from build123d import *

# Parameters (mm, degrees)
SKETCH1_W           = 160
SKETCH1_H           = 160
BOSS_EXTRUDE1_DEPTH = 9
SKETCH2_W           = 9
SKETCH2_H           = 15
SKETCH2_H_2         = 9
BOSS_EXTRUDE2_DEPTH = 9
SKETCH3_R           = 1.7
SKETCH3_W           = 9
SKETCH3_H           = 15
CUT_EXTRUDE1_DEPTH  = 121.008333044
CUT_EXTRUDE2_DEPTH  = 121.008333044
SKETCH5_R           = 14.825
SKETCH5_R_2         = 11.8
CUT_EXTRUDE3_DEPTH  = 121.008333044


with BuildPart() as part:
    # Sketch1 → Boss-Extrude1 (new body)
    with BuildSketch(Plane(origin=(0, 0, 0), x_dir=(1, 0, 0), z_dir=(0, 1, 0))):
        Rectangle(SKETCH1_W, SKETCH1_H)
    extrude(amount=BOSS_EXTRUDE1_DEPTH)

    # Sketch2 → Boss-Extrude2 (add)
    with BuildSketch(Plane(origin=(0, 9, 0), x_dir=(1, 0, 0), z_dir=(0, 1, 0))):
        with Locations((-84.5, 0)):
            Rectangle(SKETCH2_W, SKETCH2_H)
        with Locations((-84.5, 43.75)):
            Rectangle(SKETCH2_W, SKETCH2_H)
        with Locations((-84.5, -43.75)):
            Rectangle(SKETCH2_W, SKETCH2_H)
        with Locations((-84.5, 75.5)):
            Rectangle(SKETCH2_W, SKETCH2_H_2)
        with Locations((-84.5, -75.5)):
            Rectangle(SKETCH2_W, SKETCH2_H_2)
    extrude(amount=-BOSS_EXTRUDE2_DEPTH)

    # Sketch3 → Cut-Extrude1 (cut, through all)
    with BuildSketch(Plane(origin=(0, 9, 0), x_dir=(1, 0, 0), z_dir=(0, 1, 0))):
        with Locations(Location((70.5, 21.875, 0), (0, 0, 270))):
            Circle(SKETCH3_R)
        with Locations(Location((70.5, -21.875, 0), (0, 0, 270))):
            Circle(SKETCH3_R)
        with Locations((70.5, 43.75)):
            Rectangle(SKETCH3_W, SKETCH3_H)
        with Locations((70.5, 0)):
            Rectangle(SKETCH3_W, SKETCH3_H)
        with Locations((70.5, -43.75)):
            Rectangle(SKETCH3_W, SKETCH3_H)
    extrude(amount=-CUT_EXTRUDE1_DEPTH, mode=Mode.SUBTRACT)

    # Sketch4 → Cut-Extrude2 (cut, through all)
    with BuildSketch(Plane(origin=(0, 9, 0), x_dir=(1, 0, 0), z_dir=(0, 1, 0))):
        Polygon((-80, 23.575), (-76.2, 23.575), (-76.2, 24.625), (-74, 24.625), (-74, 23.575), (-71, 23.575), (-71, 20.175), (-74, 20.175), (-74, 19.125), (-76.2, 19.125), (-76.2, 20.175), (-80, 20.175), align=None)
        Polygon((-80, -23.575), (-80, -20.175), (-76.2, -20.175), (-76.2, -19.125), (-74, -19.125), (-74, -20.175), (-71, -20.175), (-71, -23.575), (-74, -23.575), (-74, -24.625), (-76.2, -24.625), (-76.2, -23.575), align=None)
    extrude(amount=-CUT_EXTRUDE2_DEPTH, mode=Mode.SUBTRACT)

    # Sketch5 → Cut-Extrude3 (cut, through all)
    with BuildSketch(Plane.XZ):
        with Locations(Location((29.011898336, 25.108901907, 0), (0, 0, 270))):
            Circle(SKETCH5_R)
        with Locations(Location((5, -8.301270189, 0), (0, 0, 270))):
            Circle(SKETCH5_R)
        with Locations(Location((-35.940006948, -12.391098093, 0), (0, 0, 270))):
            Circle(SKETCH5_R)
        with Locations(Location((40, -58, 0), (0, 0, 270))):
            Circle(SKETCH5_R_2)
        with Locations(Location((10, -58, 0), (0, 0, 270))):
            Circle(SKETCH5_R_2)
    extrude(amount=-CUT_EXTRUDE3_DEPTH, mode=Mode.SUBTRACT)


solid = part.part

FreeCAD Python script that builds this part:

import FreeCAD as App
import Part
import Sketcher

doc = App.newDocument("Part")
body = doc.addObject("PartDesign::Body", "Body")

sketch1 = body.newObject("Sketcher::SketchObject", "Sketch")
sketch1.AttachmentSupport = (doc.getObject("XZ_Plane"), [""])
sketch1.MapMode = "FlatFace"
sketch1.addGeometry([
    Part.LineSegment(App.Vector(-80, -80, 0), App.Vector(-80, 80, 0)),
    Part.LineSegment(App.Vector(-80, 80, 0), App.Vector(80, 80, 0)),
    Part.LineSegment(App.Vector(80, 80, 0), App.Vector(80, -80, 0)),
    Part.LineSegment(App.Vector(80, -80, 0), App.Vector(-80, -80, 0)),
], False)
sketch1.addConstraint([
    Sketcher.Constraint("Coincident", 0, 2, 1, 1),
    Sketcher.Constraint("Coincident", 1, 2, 2, 1),
    Sketcher.Constraint("Coincident", 2, 2, 3, 1),
    Sketcher.Constraint("Coincident", 3, 2, 0, 1),
    Sketcher.Constraint("Vertical", 0),
    Sketcher.Constraint("Horizontal", 1),
    Sketcher.Constraint("Vertical", 2),
    Sketcher.Constraint("Horizontal", 3),
    Sketcher.Constraint("Symmetric", 0, 2, 2, 2, -1, 1),
    Sketcher.Constraint("Equal", 3, 0),
    Sketcher.Constraint("DistanceX", 1, 1, 1, 2, 160.0),
])
pad1 = body.newObject("PartDesign::Pad", "Pad")
pad1.Profile = sketch1
pad1.Length = 9
pad1.Reversed = True

sketch2 = body.newObject("Sketcher::SketchObject", "Sketch001")
sketch2.AttachmentSupport = (doc.getObject("XZ_Plane"), [""])
sketch2.MapMode = "FlatFace"
sketch2.AttachmentOffset = App.Placement(App.Vector(0, 0, -9), App.Rotation())
sketch2.addGeometry([
    Part.LineSegment(App.Vector(-89, -8, 0), App.Vector(-89, 8, 0)),
    Part.LineSegment(App.Vector(-89, 8, 0), App.Vector(-80, 8, 0)),
    Part.LineSegment(App.Vector(-80, 8, 0), App.Vector(-80, -8, 0)),
    Part.LineSegment(App.Vector(-80, -8, 0), App.Vector(-89, -8, 0)),
    Part.LineSegment(App.Vector(-89, -51, 0), App.Vector(-89, -36, 0)),
    Part.LineSegment(App.Vector(-89, -36, 0), App.Vector(-80, -36, 0)),
    Part.LineSegment(App.Vector(-80, -36, 0), App.Vector(-80, -51, 0)),
    Part.LineSegment(App.Vector(-80, -51, 0), App.Vector(-89, -51, 0)),
    Part.LineSegment(App.Vector(-89, 36, 0), App.Vector(-89, 51, 0)),
    Part.LineSegment(App.Vector(-89, 51, 0), App.Vector(-80, 51, 0)),
    Part.LineSegment(App.Vector(-80, 51, 0), App.Vector(-80, 36, 0)),
    Part.LineSegment(App.Vector(-80, 36, 0), App.Vector(-89, 36, 0)),
    Part.LineSegment(App.Vector(-89, -80, 0), App.Vector(-89, -71, 0)),
    Part.LineSegment(App.Vector(-89, -71, 0), App.Vector(-80, -71, 0)),
    Part.LineSegment(App.Vector(-80, -71, 0), App.Vector(-80, -80, 0)),
    Part.LineSegment(App.Vector(-80, -80, 0), App.Vector(-89, -80, 0)),
    Part.LineSegment(App.Vector(-89, 71, 0), App.Vector(-89, 80, 0)),
    Part.LineSegment(App.Vector(-89, 80, 0), App.Vector(-80, 80, 0)),
    Part.LineSegment(App.Vector(-80, 80, 0), App.Vector(-80, 71, 0)),
    Part.LineSegment(App.Vector(-80, 71, 0), App.Vector(-89, 71, 0)),
], False)
sketch2.addConstraint([
    Sketcher.Constraint("Coincident", 0, 2, 1, 1),
    Sketcher.Constraint("Coincident", 1, 2, 2, 1),
    Sketcher.Constraint("Coincident", 2, 2, 3, 1),
    Sketcher.Constraint("Coincident", 3, 2, 0, 1),
    Sketcher.Constraint("Coincident", 4, 2, 5, 1),
    Sketcher.Constraint("Coincident", 5, 2, 6, 1),
    Sketcher.Constraint("Coincident", 6, 2, 7, 1),
    Sketcher.Constraint("Coincident", 7, 2, 4, 1),
    Sketcher.Constraint("Coincident", 8, 2, 9, 1),
    Sketcher.Constraint("Coincident", 9, 2, 10, 1),
    Sketcher.Constraint("Coincident", 10, 2, 11, 1),
    Sketcher.Constraint("Coincident", 11, 2, 8, 1),
    Sketcher.Constraint("Coincident", 12, 2, 13, 1),
    Sketcher.Constraint("Coincident", 13, 2, 14, 1),
    Sketcher.Constraint("Coincident", 14, 2, 15, 1),
    Sketcher.Constraint("Coincident", 15, 2, 12, 1),
    Sketcher.Constraint("Coincident", 16, 2, 17, 1),
    Sketcher.Constraint("Coincident", 17, 2, 18, 1),
    Sketcher.Constraint("Coincident", 18, 2, 19, 1),
    Sketcher.Constraint("Coincident", 19, 2, 16, 1),
    Sketcher.Constraint("Vertical", 0),
    Sketcher.Constraint("Horizontal", 1),
    Sketcher.Constraint("Vertical", 2),
    Sketcher.Constraint("Horizontal", 3),
    Sketcher.Constraint("Vertical", 4),
    Sketcher.Constraint("Horizontal", 5),
    Sketcher.Constraint("Vertical", 6),
    Sketcher.Constraint("Horizontal", 7),
    Sketcher.Constraint("Vertical", 8),
    Sketcher.Constraint("Horizontal", 9),
    Sketcher.Constraint("Vertical", 10),
    Sketcher.Constraint("Horizontal", 11),
    Sketcher.Constraint("Vertical", 12),
    Sketcher.Constraint("Horizontal", 13),
    Sketcher.Constraint("Vertical", 14),
    Sketcher.Constraint("Horizontal", 15),
    Sketcher.Constraint("Vertical", 16),
    Sketcher.Constraint("Horizontal", 17),
    Sketcher.Constraint("Vertical", 18),
    Sketcher.Constraint("Horizontal", 19),
    Sketcher.Constraint("Symmetric", 7, 2, 8, 2, -1),
    Sketcher.Constraint("Symmetric", 5, 2, 10, 2, -1),
    Sketcher.Constraint("Symmetric", 15, 2, 16, 2, -1),
    Sketcher.Constraint("Symmetric", 13, 2, 18, 2, -1),
    Sketcher.Constraint("Vertical", 3, 2, 4, 2),
    Sketcher.Constraint("Vertical", 2, 2, 5, 2),
    Sketcher.Constraint("Vertical", 11, 2, 12, 2),
    Sketcher.Constraint("Vertical", 10, 2, 13, 2),
    Sketcher.Constraint("Equal", 2, 4),
    Sketcher.Constraint("Equal", 19, 12),
    Sketcher.Constraint("DistanceX", 1, 1, 1, 2, 9.0),
    Sketcher.Constraint("DistanceY", 0, 1, 0, 2, 15.0),
    Sketcher.Constraint("DistanceX", 0, 2, -1, 1, 89.0),
    Sketcher.Constraint("DistanceY", 12, 2, -1, 1, 71.0),
    Sketcher.Constraint("DistanceY", -1, 1, 0, 2, 7.5),
    Sketcher.Constraint("DistanceY", 4, 2, 8, 2, 87.5),
])
pad2 = body.newObject("PartDesign::Pad", "Pad001")
pad2.Profile = sketch2
pad2.Length = 9

sketch3 = body.newObject("Sketcher::SketchObject", "Sketch002")
sketch3.AttachmentSupport = (doc.getObject("XZ_Plane"), [""])
sketch3.MapMode = "FlatFace"
sketch3.AttachmentOffset = App.Placement(App.Vector(0, 0, -9), App.Rotation())
sketch3.addGeometry([
    Part.Circle(App.Vector(70.5, -21.9, 0), App.Vector(0, 0, 1), 1.7),
    Part.Circle(App.Vector(70.5, 21.9, 0), App.Vector(0, 0, 1), 1.7),
    Part.LineSegment(App.Vector(66, -51.2, 0), App.Vector(66, -36.2, 0)),
    Part.LineSegment(App.Vector(66, -36.2, 0), App.Vector(75, -36.2, 0)),
    Part.LineSegment(App.Vector(75, -36.2, 0), App.Vector(75, -51.2, 0)),
    Part.LineSegment(App.Vector(75, -51.2, 0), App.Vector(66, -51.2, 0)),
    Part.LineSegment(App.Vector(66, -7.5, 0), App.Vector(66, 7.5, 0)),
    Part.LineSegment(App.Vector(66, 7.5, 0), App.Vector(75, 7.5, 0)),
    Part.LineSegment(App.Vector(75, 7.5, 0), App.Vector(75, -7.5, 0)),
    Part.LineSegment(App.Vector(75, -7.5, 0), App.Vector(66, -7.5, 0)),
    Part.LineSegment(App.Vector(66, 36.2, 0), App.Vector(66, 51.2, 0)),
    Part.LineSegment(App.Vector(66, 51.2, 0), App.Vector(75, 51.2, 0)),
    Part.LineSegment(App.Vector(75, 51.2, 0), App.Vector(75, 36.2, 0)),
    Part.LineSegment(App.Vector(75, 36.2, 0), App.Vector(66, 36.2, 0)),
], False)
sketch3.addConstraint([
    Sketcher.Constraint("Coincident", 2, 2, 3, 1),
    Sketcher.Constraint("Coincident", 3, 2, 4, 1),
    Sketcher.Constraint("Coincident", 4, 2, 5, 1),
    Sketcher.Constraint("Coincident", 5, 2, 2, 1),
    Sketcher.Constraint("Coincident", 6, 2, 7, 1),
    Sketcher.Constraint("Coincident", 7, 2, 8, 1),
    Sketcher.Constraint("Coincident", 8, 2, 9, 1),
    Sketcher.Constraint("Coincident", 9, 2, 6, 1),
    Sketcher.Constraint("Coincident", 10, 2, 11, 1),
    Sketcher.Constraint("Coincident", 11, 2, 12, 1),
    Sketcher.Constraint("Coincident", 12, 2, 13, 1),
    Sketcher.Constraint("Coincident", 13, 2, 10, 1),
    Sketcher.Constraint("Vertical", 2),
    Sketcher.Constraint("Horizontal", 3),
    Sketcher.Constraint("Vertical", 4),
    Sketcher.Constraint("Horizontal", 5),
    Sketcher.Constraint("Vertical", 6),
    Sketcher.Constraint("Horizontal", 7),
    Sketcher.Constraint("Vertical", 8),
    Sketcher.Constraint("Horizontal", 9),
    Sketcher.Constraint("Vertical", 10),
    Sketcher.Constraint("Horizontal", 11),
    Sketcher.Constraint("Vertical", 12),
    Sketcher.Constraint("Horizontal", 13),
    Sketcher.Constraint("Equal", 0, 1),
    Sketcher.Constraint("Symmetric", 0, 3, 1, 3, -1),
    Sketcher.Constraint("Symmetric", 5, 2, 10, 2, -1),
    Sketcher.Constraint("Symmetric", 3, 2, 12, 2, -1),
    Sketcher.Constraint("Vertical", 5, 2, 6, 2),
    Sketcher.Constraint("Vertical", 4, 2, 7, 2),
    Sketcher.Constraint("Equal", 4, 6),
    Sketcher.Constraint("Diameter", 0, 3.4),
    Sketcher.Constraint("DistanceX", 3, 1, 3, 2, 9.0),
    Sketcher.Constraint("DistanceY", 2, 1, 2, 2, 15.0),
    Sketcher.Constraint("DistanceX", -1, 1, 2, 2, 66.0),
    Sketcher.Constraint("DistanceX", -1, 1, 0, 3, 70.5),
    Sketcher.Constraint("DistanceY", -1, 1, 6, 2, 7.5),
    Sketcher.Constraint("DistanceY", 2, 2, -1, 1, 36.25),
    Sketcher.Constraint("DistanceY", 0, 3, 1, 3, 43.75),
])
pocket1 = body.newObject("PartDesign::Pocket", "Pocket")
pocket1.Profile = sketch3
pocket1.Type = "ThroughAll"
pocket1.Reversed = True

sketch4 = body.newObject("Sketcher::SketchObject", "Sketch003")
sketch4.AttachmentSupport = (doc.getObject("XZ_Plane"), [""])
sketch4.MapMode = "FlatFace"
sketch4.AttachmentOffset = App.Placement(App.Vector(0, 0, -9), App.Rotation())
sketch4.addGeometry([
    Part.LineSegment(App.Vector(-76.2, -23.6, 0), App.Vector(-80, -23.6, 0)),
    Part.LineSegment(App.Vector(-80, -23.6, 0), App.Vector(-80, -20.2, 0)),
    Part.LineSegment(App.Vector(-80, -20.2, 0), App.Vector(-76.2, -20.2, 0)),
    Part.LineSegment(App.Vector(-76.2, -20.2, 0), App.Vector(-76.2, -19.1, 0)),
    Part.LineSegment(App.Vector(-76.2, -19.1, 0), App.Vector(-74, -19.1, 0)),
    Part.LineSegment(App.Vector(-74, -19.1, 0), App.Vector(-74, -20.2, 0)),
    Part.LineSegment(App.Vector(-74, -20.2, 0), App.Vector(-71, -20.2, 0)),
    Part.LineSegment(App.Vector(-71, -20.2, 0), App.Vector(-71, -23.6, 0)),
    Part.LineSegment(App.Vector(-71, -23.6, 0), App.Vector(-74, -23.6, 0)),
    Part.LineSegment(App.Vector(-74, -23.6, 0), App.Vector(-74, -24.6, 0)),
    Part.LineSegment(App.Vector(-74, -24.6, 0), App.Vector(-76.2, -24.6, 0)),
    Part.LineSegment(App.Vector(-76.2, -24.6, 0), App.Vector(-76.2, -23.6, 0)),
    Part.LineSegment(App.Vector(-80, 20.2, 0), App.Vector(-80, 23.6, 0)),
    Part.LineSegment(App.Vector(-80, 23.6, 0), App.Vector(-76.2, 23.6, 0)),
    Part.LineSegment(App.Vector(-76.2, 23.6, 0), App.Vector(-76.2, 24.6, 0)),
    Part.LineSegment(App.Vector(-76.2, 24.6, 0), App.Vector(-74, 24.6, 0)),
    Part.LineSegment(App.Vector(-74, 24.6, 0), App.Vector(-74, 23.6, 0)),
    Part.LineSegment(App.Vector(-74, 23.6, 0), App.Vector(-71, 23.6, 0)),
    Part.LineSegment(App.Vector(-71, 23.6, 0), App.Vector(-71, 20.2, 0)),
    Part.LineSegment(App.Vector(-71, 20.2, 0), App.Vector(-74, 20.2, 0)),
    Part.LineSegment(App.Vector(-74, 20.2, 0), App.Vector(-74, 19.1, 0)),
    Part.LineSegment(App.Vector(-74, 19.1, 0), App.Vector(-76.2, 19.1, 0)),
    Part.LineSegment(App.Vector(-76.2, 19.1, 0), App.Vector(-76.2, 20.2, 0)),
    Part.LineSegment(App.Vector(-76.2, 20.2, 0), App.Vector(-80, 20.2, 0)),
], False)
sketch4.addConstraint([
    Sketcher.Constraint("Coincident", 0, 2, 1, 1),
    Sketcher.Constraint("Coincident", 1, 2, 2, 1),
    Sketcher.Constraint("Coincident", 2, 2, 3, 1),
    Sketcher.Constraint("Coincident", 3, 2, 4, 1),
    Sketcher.Constraint("Coincident", 4, 2, 5, 1),
    Sketcher.Constraint("Coincident", 5, 2, 6, 1),
    Sketcher.Constraint("Coincident", 6, 2, 7, 1),
    Sketcher.Constraint("Coincident", 7, 2, 8, 1),
    Sketcher.Constraint("Coincident", 8, 2, 9, 1),
    Sketcher.Constraint("Coincident", 9, 2, 10, 1),
    Sketcher.Constraint("Coincident", 10, 2, 11, 1),
    Sketcher.Constraint("Coincident", 11, 2, 0, 1),
    Sketcher.Constraint("Coincident", 12, 2, 13, 1),
    Sketcher.Constraint("Coincident", 13, 2, 14, 1),
    Sketcher.Constraint("Coincident", 14, 2, 15, 1),
    Sketcher.Constraint("Coincident", 15, 2, 16, 1),
    Sketcher.Constraint("Coincident", 16, 2, 17, 1),
    Sketcher.Constraint("Coincident", 17, 2, 18, 1),
    Sketcher.Constraint("Coincident", 18, 2, 19, 1),
    Sketcher.Constraint("Coincident", 19, 2, 20, 1),
    Sketcher.Constraint("Coincident", 20, 2, 21, 1),
    Sketcher.Constraint("Coincident", 21, 2, 22, 1),
    Sketcher.Constraint("Coincident", 22, 2, 23, 1),
    Sketcher.Constraint("Coincident", 23, 2, 12, 1),
    Sketcher.Constraint("Horizontal", 0),
    Sketcher.Constraint("Vertical", 1),
    Sketcher.Constraint("Horizontal", 2),
    Sketcher.Constraint("Vertical", 3),
    Sketcher.Constraint("Horizontal", 4),
    Sketcher.Constraint("Vertical", 5),
    Sketcher.Constraint("Horizontal", 6),
    Sketcher.Constraint("Vertical", 7),
    Sketcher.Constraint("Horizontal", 8),
    Sketcher.Constraint("Vertical", 9),
    Sketcher.Constraint("Horizontal", 10),
    Sketcher.Constraint("Vertical", 11),
    Sketcher.Constraint("Vertical", 12),
    Sketcher.Constraint("Horizontal", 13),
    Sketcher.Constraint("Vertical", 14),
    Sketcher.Constraint("Horizontal", 15),
    Sketcher.Constraint("Vertical", 16),
    Sketcher.Constraint("Horizontal", 17),
    Sketcher.Constraint("Vertical", 18),
    Sketcher.Constraint("Horizontal", 19),
    Sketcher.Constraint("Vertical", 20),
    Sketcher.Constraint("Horizontal", 21),
    Sketcher.Constraint("Vertical", 22),
    Sketcher.Constraint("Horizontal", 23),
    Sketcher.Constraint("Symmetric", 0, 2, 12, 2, -1),
    Sketcher.Constraint("Symmetric", 10, 2, 14, 2, -1),
    Sketcher.Constraint("Symmetric", 8, 2, 16, 2, -1),
    Sketcher.Constraint("Symmetric", 6, 2, 18, 2, -1),
    Sketcher.Constraint("Symmetric", 4, 2, 20, 2, -1),
    Sketcher.Constraint("Symmetric", 2, 2, 22, 2, -1),
    Sketcher.Constraint("Horizontal", 2, 2, 5, 2),
    Sketcher.Constraint("Horizontal", 0, 2, 7, 2),
    Sketcher.Constraint("Vertical", 5, 2, 8, 2),
    Sketcher.Constraint("Vertical", 3, 2, 10, 2),
    Sketcher.Constraint("Equal", 5, 9),
    Sketcher.Constraint("DistanceX", 6, 1, 6, 2, 3.0),
    Sketcher.Constraint("DistanceX", 0, 2, 0, 1, 3.8),
    Sketcher.Constraint("DistanceX", 4, 1, 4, 2, 2.2),
    Sketcher.Constraint("DistanceY", 1, 1, 1, 2, 3.4),
    Sketcher.Constraint("DistanceX", 0, 2, -1, 1, 80.0),
    Sketcher.Constraint("DistanceY", 3, 1, 3, 2, 1.05),
    Sketcher.Constraint("DistanceY", 3, 2, 12, 2, 42.7),
])
pocket2 = body.newObject("PartDesign::Pocket", "Pocket001")
pocket2.Profile = sketch4
pocket2.Type = "ThroughAll"
pocket2.Reversed = True

sketch5 = body.newObject("Sketcher::SketchObject", "Sketch004")
sketch5.AttachmentSupport = (doc.getObject("XZ_Plane"), [""])
sketch5.MapMode = "FlatFace"
sketch5.addGeometry([
    Part.Circle(App.Vector(29, 25, 0), App.Vector(0, 0, 1), 15),
    Part.Circle(App.Vector(5, -8, 0), App.Vector(0, 0, 1), 15),
    Part.Circle(App.Vector(-36, -12, 0), App.Vector(0, 0, 1), 15),
    Part.Circle(App.Vector(40, -58, 0), App.Vector(0, 0, 1), 12),
    Part.Circle(App.Vector(10, -58, 0), App.Vector(0, 0, 1), 12),
], False)
sketch5.addConstraint([
    Sketcher.Constraint("Equal", 0, 1),
    Sketcher.Constraint("Equal", 1, 2),
    Sketcher.Constraint("Equal", 3, 4),
    Sketcher.Constraint("Horizontal", 3, 3, 4, 3),
    Sketcher.Constraint("Diameter", 3, 23.6),
    Sketcher.Constraint("Diameter", 0, 29.65),
    Sketcher.Constraint("DistanceX", -1, 1, 1, 3, 5.0),
    Sketcher.Constraint("DistanceX", -1, 1, 3, 3, 40.0),
    Sketcher.Constraint("DistanceY", 3, 3, -1, 1, 58.0),
    Sketcher.Constraint("DistanceX", -1, 1, 4, 3, 10.0),
    Sketcher.Constraint("DistanceY", 2, 3, 0, 3, 37.5),
    Sketcher.Constraint("DistanceX", -1, 1, 0, 3, 29.011898),
    Sketcher.Constraint("DistanceY", -1, 1, 0, 3, 25.108902),
    Sketcher.Constraint("DistanceY", 1, 3, -1, 1, 8.30127),
    Sketcher.Constraint("DistanceX", 2, 3, -1, 1, 35.940007),
])
pocket3 = body.newObject("PartDesign::Pocket", "Pocket002")
pocket3.Profile = sketch5
pocket3.Type = "ThroughAll"

doc.recompute()
